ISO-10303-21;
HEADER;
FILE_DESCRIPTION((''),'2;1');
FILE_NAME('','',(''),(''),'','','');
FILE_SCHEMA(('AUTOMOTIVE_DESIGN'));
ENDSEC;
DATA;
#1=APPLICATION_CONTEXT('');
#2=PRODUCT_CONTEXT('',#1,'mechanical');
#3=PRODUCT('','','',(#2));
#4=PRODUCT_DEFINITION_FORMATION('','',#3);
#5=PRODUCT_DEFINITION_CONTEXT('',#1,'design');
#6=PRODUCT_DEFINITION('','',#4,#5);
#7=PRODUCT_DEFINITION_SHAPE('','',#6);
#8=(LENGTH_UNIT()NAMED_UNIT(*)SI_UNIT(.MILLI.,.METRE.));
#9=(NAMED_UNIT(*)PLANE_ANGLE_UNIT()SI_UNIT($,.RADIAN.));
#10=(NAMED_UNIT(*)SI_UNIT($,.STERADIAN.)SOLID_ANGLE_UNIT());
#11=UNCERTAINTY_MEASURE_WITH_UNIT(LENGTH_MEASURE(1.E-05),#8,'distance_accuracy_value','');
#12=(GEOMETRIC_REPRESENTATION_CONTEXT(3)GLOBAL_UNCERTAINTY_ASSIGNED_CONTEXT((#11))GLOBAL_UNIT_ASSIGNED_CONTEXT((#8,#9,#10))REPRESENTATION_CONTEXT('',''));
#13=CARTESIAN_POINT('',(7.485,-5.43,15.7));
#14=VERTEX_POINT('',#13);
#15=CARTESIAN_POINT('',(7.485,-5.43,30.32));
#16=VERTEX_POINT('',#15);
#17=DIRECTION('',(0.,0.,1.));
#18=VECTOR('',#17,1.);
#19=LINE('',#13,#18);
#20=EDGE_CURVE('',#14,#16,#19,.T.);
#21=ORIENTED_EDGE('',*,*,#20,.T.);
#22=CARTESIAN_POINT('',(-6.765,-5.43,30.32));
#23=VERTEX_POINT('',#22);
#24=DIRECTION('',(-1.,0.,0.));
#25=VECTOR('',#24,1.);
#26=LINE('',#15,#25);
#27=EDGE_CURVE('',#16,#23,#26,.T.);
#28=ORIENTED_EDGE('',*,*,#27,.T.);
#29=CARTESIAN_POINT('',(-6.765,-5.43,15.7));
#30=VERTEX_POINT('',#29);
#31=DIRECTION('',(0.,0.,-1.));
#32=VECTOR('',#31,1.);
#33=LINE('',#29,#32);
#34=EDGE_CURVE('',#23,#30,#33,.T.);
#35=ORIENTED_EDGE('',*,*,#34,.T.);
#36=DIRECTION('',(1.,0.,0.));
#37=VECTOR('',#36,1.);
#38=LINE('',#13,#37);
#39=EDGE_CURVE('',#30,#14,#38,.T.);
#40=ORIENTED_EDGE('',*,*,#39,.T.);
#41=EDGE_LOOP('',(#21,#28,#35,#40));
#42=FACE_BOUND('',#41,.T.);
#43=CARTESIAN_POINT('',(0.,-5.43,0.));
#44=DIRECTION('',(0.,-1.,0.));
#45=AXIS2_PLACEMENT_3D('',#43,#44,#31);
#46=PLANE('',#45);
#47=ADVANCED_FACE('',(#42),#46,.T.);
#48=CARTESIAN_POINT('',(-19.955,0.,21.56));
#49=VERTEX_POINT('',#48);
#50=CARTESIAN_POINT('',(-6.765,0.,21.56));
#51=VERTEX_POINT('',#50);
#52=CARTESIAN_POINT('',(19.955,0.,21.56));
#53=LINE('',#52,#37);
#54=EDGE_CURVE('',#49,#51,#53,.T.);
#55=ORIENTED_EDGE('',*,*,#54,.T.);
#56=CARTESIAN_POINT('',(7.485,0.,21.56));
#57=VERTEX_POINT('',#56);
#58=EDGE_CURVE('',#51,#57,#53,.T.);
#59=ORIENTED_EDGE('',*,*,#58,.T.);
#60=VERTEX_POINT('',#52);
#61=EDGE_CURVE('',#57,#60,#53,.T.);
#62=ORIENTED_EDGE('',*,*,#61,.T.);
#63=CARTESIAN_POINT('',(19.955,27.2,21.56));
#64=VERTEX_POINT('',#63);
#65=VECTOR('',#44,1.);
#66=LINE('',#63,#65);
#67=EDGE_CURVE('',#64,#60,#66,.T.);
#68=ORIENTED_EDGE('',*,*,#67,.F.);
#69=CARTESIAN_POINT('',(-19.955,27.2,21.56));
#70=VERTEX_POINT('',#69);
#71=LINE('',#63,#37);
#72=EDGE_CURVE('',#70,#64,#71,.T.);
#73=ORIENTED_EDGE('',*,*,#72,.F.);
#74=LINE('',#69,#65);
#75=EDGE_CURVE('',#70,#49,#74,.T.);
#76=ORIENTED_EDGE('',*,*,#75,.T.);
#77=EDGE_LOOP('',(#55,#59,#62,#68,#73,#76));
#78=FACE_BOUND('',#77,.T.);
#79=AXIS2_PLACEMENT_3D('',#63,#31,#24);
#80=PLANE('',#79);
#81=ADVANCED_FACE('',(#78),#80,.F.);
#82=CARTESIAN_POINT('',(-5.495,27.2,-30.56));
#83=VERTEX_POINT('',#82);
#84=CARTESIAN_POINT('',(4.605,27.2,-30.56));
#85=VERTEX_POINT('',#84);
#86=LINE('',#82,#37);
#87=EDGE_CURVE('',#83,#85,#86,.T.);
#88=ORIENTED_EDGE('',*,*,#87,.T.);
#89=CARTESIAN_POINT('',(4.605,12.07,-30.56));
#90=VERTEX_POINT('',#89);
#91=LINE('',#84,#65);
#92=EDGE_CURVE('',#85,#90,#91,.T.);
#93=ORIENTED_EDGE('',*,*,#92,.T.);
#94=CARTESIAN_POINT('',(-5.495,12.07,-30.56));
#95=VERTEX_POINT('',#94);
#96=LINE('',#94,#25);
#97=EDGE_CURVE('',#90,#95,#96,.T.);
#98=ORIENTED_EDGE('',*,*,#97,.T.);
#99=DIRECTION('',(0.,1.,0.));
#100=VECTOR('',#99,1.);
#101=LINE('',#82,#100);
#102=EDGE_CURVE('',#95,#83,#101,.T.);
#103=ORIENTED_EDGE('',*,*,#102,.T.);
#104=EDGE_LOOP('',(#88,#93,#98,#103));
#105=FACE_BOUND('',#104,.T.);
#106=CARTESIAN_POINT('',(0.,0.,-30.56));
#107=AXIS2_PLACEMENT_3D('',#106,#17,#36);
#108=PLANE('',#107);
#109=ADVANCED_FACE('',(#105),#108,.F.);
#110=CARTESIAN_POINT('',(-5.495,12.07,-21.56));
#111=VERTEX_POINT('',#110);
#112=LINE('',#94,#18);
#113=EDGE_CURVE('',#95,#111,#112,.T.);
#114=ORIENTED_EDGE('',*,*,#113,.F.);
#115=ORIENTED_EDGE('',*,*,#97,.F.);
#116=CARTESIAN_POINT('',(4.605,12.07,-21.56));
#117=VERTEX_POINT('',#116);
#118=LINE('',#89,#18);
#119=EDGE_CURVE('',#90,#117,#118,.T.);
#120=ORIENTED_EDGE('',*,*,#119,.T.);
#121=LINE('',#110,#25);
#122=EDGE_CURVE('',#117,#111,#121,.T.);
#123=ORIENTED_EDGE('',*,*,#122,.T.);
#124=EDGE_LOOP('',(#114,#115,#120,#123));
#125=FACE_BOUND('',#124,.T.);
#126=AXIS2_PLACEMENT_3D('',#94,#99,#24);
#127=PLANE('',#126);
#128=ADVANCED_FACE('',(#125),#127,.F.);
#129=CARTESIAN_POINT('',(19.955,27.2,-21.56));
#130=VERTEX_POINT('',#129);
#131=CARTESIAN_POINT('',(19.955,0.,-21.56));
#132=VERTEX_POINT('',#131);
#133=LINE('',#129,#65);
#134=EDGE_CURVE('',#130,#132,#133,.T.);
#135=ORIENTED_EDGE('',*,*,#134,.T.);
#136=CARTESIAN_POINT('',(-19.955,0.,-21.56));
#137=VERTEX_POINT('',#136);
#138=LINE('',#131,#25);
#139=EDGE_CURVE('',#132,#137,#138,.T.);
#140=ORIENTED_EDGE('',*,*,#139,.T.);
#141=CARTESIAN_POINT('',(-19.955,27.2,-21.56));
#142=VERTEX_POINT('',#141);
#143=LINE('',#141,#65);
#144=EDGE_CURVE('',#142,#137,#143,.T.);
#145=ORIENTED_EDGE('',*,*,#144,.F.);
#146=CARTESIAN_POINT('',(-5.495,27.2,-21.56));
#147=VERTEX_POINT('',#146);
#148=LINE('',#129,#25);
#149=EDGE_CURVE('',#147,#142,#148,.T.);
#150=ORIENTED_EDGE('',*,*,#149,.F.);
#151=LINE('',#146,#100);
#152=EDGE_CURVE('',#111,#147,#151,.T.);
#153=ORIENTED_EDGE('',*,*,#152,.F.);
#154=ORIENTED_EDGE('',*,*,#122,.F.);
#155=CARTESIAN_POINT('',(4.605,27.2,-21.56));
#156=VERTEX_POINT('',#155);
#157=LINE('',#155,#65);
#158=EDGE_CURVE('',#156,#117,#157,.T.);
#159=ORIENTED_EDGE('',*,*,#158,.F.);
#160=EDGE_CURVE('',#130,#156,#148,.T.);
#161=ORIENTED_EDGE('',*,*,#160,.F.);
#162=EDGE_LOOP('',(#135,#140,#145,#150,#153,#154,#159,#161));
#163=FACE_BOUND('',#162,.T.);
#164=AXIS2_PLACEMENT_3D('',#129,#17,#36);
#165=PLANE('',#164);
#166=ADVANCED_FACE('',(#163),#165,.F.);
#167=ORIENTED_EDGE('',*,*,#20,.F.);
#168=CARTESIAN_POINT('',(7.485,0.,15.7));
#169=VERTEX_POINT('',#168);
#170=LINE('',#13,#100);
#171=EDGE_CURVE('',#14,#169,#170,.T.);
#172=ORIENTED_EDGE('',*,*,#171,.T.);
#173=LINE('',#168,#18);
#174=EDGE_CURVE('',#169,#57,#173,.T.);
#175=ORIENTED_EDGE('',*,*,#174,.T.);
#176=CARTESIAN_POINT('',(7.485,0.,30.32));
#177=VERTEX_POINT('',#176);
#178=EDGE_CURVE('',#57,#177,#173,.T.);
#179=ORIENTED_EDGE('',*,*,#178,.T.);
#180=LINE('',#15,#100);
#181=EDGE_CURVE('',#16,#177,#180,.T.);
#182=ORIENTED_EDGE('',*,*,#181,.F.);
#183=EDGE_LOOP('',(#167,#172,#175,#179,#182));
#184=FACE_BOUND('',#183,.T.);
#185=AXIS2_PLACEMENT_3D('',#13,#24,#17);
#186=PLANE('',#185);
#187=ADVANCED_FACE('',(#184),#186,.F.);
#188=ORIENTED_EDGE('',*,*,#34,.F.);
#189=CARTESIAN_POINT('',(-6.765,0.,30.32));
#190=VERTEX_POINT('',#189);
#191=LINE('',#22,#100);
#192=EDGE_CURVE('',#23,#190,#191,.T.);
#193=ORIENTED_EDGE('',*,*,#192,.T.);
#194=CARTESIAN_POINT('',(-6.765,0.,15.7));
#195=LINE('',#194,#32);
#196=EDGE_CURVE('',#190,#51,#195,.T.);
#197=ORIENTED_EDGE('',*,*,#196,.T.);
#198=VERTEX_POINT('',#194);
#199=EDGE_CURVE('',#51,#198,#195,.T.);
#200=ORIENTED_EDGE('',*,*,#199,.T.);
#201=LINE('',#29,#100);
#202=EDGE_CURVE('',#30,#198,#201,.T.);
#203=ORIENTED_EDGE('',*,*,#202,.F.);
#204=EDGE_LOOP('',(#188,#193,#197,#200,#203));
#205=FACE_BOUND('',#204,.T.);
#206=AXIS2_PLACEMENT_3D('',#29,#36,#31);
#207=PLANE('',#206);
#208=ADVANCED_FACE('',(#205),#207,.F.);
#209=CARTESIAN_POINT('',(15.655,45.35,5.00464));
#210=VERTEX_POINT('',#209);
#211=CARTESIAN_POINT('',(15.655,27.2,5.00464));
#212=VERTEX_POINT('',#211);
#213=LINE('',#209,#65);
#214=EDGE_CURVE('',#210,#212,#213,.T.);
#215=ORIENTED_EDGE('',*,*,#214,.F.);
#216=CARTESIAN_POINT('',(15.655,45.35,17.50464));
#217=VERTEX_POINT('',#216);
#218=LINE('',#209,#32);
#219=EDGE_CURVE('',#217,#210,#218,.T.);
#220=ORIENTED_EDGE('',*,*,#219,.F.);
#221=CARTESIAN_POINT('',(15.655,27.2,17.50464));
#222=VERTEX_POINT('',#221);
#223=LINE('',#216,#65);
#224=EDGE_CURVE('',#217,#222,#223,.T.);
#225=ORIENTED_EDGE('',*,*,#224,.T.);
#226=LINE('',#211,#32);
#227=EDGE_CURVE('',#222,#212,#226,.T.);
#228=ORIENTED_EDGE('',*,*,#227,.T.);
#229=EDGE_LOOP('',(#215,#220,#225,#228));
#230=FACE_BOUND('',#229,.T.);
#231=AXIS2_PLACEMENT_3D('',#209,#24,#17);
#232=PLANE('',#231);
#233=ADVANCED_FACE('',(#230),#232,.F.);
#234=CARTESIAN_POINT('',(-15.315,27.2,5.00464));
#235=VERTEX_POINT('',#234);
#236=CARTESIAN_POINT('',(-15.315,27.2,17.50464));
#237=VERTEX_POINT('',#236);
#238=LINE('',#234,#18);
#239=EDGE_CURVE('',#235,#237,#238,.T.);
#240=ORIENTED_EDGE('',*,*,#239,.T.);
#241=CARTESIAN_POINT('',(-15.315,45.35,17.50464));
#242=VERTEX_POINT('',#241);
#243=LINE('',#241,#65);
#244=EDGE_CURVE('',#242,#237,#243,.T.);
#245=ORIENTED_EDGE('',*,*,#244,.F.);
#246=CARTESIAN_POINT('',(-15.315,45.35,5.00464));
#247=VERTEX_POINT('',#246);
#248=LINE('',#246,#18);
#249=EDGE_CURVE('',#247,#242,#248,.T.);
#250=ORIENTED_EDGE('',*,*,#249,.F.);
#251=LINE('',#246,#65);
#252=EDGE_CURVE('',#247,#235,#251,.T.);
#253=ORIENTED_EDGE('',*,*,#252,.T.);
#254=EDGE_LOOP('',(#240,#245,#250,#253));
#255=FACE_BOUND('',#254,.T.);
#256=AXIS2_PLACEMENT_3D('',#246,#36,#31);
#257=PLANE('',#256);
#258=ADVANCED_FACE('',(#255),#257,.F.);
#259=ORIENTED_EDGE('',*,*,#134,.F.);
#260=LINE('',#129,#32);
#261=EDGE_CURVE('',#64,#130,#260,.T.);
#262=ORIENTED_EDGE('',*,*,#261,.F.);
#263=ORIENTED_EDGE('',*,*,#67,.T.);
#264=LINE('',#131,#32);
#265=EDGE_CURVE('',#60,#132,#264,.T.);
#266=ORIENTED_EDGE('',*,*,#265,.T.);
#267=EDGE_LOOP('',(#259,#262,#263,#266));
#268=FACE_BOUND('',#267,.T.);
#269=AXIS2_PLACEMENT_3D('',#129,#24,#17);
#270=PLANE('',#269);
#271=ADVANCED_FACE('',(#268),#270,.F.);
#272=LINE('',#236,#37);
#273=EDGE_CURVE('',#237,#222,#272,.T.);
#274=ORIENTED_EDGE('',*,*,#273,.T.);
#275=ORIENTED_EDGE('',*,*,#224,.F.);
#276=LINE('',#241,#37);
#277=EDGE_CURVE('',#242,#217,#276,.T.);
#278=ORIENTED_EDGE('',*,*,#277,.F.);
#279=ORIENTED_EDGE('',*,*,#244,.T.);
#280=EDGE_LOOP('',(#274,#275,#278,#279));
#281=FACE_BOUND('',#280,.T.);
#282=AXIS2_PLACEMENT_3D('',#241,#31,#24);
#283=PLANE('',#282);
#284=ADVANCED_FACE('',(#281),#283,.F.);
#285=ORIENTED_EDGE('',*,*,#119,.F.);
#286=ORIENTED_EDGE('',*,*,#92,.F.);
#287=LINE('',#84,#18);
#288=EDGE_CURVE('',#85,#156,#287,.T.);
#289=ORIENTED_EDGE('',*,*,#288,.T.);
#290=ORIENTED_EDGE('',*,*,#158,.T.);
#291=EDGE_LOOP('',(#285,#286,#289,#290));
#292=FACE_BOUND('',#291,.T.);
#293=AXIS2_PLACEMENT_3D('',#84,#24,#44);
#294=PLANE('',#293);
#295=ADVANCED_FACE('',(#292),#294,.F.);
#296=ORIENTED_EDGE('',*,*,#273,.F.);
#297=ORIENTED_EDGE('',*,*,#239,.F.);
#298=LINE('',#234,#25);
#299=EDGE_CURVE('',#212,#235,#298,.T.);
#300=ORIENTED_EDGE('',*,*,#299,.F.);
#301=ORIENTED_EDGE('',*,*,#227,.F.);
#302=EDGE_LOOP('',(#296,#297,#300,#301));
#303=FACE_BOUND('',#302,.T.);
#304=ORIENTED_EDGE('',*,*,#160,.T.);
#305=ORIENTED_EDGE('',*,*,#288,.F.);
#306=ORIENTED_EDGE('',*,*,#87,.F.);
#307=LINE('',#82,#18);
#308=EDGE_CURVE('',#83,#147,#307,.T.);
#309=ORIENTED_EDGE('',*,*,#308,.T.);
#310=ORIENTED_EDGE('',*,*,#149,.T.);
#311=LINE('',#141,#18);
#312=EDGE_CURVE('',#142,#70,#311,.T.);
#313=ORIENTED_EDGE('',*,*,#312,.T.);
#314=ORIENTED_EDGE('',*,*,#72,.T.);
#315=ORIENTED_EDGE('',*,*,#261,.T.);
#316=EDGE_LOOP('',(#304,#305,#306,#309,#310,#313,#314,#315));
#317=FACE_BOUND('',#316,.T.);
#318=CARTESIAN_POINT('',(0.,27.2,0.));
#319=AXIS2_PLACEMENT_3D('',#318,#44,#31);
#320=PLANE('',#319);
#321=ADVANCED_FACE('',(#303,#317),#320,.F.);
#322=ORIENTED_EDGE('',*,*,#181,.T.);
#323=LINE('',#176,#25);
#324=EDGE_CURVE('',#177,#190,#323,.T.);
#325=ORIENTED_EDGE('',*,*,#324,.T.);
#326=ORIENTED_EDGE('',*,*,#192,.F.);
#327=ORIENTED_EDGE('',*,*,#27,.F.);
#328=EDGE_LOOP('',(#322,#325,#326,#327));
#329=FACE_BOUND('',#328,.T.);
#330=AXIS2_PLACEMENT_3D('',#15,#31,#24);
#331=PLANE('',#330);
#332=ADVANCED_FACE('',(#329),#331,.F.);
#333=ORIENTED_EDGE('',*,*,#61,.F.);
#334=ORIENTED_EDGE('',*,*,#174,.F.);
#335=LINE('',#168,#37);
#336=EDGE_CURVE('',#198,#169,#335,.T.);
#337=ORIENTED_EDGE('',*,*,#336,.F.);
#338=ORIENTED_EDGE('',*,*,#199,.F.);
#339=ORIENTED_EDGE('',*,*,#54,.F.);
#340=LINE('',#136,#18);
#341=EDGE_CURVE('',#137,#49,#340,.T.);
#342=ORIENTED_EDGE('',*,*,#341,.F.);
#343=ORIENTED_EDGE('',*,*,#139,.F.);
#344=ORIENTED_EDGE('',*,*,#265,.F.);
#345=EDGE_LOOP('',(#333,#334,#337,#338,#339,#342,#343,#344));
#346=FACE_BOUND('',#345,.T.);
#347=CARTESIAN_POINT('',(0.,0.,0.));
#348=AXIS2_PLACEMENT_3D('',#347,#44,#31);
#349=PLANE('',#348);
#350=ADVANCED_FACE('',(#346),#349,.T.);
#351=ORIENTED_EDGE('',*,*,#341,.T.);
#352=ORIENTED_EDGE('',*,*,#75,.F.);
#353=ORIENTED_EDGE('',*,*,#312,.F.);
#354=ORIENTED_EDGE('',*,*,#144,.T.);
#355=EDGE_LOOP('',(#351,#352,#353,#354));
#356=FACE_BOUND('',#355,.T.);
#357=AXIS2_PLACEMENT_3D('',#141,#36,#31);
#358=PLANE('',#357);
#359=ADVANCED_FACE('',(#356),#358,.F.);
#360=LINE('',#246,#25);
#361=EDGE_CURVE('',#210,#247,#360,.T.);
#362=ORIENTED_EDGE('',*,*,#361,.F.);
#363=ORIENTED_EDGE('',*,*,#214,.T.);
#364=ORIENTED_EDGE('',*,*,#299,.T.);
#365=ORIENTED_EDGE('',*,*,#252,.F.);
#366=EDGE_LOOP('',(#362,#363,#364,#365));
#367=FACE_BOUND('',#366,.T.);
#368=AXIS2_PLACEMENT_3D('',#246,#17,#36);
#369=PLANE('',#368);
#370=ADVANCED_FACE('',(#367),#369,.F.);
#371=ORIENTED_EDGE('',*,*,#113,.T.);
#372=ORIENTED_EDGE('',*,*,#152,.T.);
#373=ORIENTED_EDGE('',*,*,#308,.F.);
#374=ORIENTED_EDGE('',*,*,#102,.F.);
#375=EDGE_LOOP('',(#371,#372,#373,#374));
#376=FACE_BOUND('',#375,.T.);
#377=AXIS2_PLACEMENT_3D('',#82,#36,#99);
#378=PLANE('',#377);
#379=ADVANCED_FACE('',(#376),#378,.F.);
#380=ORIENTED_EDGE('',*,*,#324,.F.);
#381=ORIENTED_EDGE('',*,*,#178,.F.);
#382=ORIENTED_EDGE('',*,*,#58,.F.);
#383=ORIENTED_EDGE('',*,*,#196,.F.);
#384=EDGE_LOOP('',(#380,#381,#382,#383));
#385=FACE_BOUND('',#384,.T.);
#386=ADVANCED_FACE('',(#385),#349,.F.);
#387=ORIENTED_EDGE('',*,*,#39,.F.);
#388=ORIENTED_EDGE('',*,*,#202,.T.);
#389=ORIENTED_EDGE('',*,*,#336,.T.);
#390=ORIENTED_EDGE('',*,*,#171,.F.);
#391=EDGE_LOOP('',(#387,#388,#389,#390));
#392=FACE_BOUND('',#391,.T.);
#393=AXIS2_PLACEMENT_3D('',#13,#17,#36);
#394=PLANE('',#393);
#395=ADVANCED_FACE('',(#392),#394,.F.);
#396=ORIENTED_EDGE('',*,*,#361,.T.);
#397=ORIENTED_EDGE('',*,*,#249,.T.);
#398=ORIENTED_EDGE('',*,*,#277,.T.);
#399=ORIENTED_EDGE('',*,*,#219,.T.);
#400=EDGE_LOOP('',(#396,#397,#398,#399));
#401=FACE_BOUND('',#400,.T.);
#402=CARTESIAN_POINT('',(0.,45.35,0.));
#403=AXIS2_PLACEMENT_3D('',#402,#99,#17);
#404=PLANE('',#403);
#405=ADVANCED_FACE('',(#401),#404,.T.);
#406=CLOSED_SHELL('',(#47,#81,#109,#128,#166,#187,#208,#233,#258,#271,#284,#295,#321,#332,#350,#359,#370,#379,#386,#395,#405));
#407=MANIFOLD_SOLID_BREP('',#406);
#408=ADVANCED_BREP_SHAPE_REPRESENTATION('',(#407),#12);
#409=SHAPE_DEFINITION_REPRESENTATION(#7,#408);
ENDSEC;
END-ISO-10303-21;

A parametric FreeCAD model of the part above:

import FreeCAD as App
import Part
import Sketcher
from FreeCAD import Vector


def add_polygon(sketch, points):
    """Adds a closed chain of lines whose ends are joined by coincident constraints."""
    first, n = sketch.GeometryCount, len(points)
    for a, b in zip(points, points[1:] + points[:1]):
        sketch.addGeometry(Part.LineSegment(App.Vector(*a, 0), App.Vector(*b, 0)), False)
    for i in range(n):
        sketch.addConstraint(Sketcher.Constraint("Coincident", first + i, 2, first + (i + 1) % n, 1))

doc = App.newDocument("Part")
body = doc.addObject("PartDesign::Body", "Body")

# Sketch on XZ plane
sketch1 = body.newObject("Sketcher::SketchObject", "Sketch")
sketch1.AttachmentSupport = (doc.getObject("XZ_Plane"), [""])
sketch1.MapMode = "FlatFace"
add_polygon(sketch1, [(-20, -22), (-20, 22), (20, 22), (20, -22)])  # lines 0-3
sketch1.addConstraint([
    Sketcher.Constraint("Vertical", 0),
    Sketcher.Constraint("Horizontal", 1),
    Sketcher.Constraint("Vertical", 2),
    Sketcher.Constraint("Horizontal", 3),
    Sketcher.Constraint("Symmetric", 0, 2, 2, 2, -1, 1),
    Sketcher.Constraint("DistanceX", 1, 1, 1, 2, 39.91),
    Sketcher.Constraint("DistanceY", 0, 1, 0, 2, 43.12),
])
pad1 = body.newObject("PartDesign::Pad", "Pad")
pad1.Profile = sketch1
pad1.Length = 27.2
pad1.Reversed = True

# Sketch on XY plane
sketch2 = body.newObject("Sketcher::SketchObject", "Sketch001")
sketch2.AttachmentSupport = (doc.getObject("XY_Plane"), [""])
sketch2.MapMode = "FlatFace"
sketch2.AttachmentOffset = App.Placement(Vector(0, 0, -21.56), App.Rotation())
add_polygon(sketch2, [(5, 27), (5, 12), (-5, 12), (-5, 27)])  # lines 0-3
sketch2.addConstraint([
    Sketcher.Constraint("Vertical", 0),
    Sketcher.Constraint("Horizontal", 1),
    Sketcher.Constraint("Vertical", 2),
    Sketcher.Constraint("Horizontal", 3),
    Sketcher.Constraint("DistanceX", 1, 2, 1, 1, 10.1),
    Sketcher.Constraint("DistanceY", 0, 2, 0, 1, 15.13),
    Sketcher.Constraint("DistanceY", -1, 1, 2, 2, 27.2),
    Sketcher.Constraint("DistanceX", -1, 1, 0, 2, 4.605),
])
pad2 = body.newObject("PartDesign::Pad", "Pad001")
pad2.Profile = sketch2
pad2.Length = 9
pad2.Reversed = True

# Sketch on XZ plane
sketch3 = body.newObject("Sketcher::SketchObject", "Sketch002")
sketch3.AttachmentSupport = (doc.getObject("XZ_Plane"), [""])
sketch3.MapMode = "FlatFace"
add_polygon(sketch3, [(-7, 30), (-7, 16), (7, 16), (7, 30)])  # lines 0-3
sketch3.addConstraint([
    Sketcher.Constraint("Vertical", 0),
    Sketcher.Constraint("Horizontal", 1),
    Sketcher.Constraint("Vertical", 2),
    Sketcher.Constraint("Horizontal", 3),
    Sketcher.Constraint("DistanceX", 1, 1, 1, 2, 14.25),
    Sketcher.Constraint("DistanceY", 0, 2, 0, 1, 14.62),
    Sketcher.Constraint("DistanceY", -1, 1, 0, 2, 15.7),
    Sketcher.Constraint("DistanceX", 0, 2, -1, 1, 6.765),
])
pad3 = body.newObject("PartDesign::Pad", "Pad002")
pad3.Profile = sketch3
pad3.Length = 5.43

# Sketch on XZ plane
sketch4 = body.newObject("Sketcher::SketchObject", "Sketch003")
sketch4.AttachmentSupport = (doc.getObject("XZ_Plane"), [""])
sketch4.MapMode = "FlatFace"
sketch4.AttachmentOffset = App.Placement(Vector(0, 0, -27.2), App.Rotation())
add_polygon(sketch4, [(-15, 5), (-15, 18), (16, 18), (16, 5)])  # lines 0-3
sketch4.addConstraint([
    Sketcher.Constraint("Vertical", 0),
    Sketcher.Constraint("Horizontal", 1),
    Sketcher.Constraint("Vertical", 2),
    Sketcher.Constraint("Horizontal", 3),
    Sketcher.Constraint("DistanceY", 0, 1, 0, 2, 12.5),
    Sketcher.Constraint("DistanceX", 1, 1, 1, 2, 30.97),
    Sketcher.Constraint("DistanceX", 0, 2, -1, 1, 15.315),
    Sketcher.Constraint("DistanceY", -1, 1, 0, 2, 17.50464),
])
pad4 = body.newObject("PartDesign::Pad", "Pad003")
pad4.Profile = sketch4
pad4.Length = 18.15
pad4.Reversed = True

doc.recompute()
